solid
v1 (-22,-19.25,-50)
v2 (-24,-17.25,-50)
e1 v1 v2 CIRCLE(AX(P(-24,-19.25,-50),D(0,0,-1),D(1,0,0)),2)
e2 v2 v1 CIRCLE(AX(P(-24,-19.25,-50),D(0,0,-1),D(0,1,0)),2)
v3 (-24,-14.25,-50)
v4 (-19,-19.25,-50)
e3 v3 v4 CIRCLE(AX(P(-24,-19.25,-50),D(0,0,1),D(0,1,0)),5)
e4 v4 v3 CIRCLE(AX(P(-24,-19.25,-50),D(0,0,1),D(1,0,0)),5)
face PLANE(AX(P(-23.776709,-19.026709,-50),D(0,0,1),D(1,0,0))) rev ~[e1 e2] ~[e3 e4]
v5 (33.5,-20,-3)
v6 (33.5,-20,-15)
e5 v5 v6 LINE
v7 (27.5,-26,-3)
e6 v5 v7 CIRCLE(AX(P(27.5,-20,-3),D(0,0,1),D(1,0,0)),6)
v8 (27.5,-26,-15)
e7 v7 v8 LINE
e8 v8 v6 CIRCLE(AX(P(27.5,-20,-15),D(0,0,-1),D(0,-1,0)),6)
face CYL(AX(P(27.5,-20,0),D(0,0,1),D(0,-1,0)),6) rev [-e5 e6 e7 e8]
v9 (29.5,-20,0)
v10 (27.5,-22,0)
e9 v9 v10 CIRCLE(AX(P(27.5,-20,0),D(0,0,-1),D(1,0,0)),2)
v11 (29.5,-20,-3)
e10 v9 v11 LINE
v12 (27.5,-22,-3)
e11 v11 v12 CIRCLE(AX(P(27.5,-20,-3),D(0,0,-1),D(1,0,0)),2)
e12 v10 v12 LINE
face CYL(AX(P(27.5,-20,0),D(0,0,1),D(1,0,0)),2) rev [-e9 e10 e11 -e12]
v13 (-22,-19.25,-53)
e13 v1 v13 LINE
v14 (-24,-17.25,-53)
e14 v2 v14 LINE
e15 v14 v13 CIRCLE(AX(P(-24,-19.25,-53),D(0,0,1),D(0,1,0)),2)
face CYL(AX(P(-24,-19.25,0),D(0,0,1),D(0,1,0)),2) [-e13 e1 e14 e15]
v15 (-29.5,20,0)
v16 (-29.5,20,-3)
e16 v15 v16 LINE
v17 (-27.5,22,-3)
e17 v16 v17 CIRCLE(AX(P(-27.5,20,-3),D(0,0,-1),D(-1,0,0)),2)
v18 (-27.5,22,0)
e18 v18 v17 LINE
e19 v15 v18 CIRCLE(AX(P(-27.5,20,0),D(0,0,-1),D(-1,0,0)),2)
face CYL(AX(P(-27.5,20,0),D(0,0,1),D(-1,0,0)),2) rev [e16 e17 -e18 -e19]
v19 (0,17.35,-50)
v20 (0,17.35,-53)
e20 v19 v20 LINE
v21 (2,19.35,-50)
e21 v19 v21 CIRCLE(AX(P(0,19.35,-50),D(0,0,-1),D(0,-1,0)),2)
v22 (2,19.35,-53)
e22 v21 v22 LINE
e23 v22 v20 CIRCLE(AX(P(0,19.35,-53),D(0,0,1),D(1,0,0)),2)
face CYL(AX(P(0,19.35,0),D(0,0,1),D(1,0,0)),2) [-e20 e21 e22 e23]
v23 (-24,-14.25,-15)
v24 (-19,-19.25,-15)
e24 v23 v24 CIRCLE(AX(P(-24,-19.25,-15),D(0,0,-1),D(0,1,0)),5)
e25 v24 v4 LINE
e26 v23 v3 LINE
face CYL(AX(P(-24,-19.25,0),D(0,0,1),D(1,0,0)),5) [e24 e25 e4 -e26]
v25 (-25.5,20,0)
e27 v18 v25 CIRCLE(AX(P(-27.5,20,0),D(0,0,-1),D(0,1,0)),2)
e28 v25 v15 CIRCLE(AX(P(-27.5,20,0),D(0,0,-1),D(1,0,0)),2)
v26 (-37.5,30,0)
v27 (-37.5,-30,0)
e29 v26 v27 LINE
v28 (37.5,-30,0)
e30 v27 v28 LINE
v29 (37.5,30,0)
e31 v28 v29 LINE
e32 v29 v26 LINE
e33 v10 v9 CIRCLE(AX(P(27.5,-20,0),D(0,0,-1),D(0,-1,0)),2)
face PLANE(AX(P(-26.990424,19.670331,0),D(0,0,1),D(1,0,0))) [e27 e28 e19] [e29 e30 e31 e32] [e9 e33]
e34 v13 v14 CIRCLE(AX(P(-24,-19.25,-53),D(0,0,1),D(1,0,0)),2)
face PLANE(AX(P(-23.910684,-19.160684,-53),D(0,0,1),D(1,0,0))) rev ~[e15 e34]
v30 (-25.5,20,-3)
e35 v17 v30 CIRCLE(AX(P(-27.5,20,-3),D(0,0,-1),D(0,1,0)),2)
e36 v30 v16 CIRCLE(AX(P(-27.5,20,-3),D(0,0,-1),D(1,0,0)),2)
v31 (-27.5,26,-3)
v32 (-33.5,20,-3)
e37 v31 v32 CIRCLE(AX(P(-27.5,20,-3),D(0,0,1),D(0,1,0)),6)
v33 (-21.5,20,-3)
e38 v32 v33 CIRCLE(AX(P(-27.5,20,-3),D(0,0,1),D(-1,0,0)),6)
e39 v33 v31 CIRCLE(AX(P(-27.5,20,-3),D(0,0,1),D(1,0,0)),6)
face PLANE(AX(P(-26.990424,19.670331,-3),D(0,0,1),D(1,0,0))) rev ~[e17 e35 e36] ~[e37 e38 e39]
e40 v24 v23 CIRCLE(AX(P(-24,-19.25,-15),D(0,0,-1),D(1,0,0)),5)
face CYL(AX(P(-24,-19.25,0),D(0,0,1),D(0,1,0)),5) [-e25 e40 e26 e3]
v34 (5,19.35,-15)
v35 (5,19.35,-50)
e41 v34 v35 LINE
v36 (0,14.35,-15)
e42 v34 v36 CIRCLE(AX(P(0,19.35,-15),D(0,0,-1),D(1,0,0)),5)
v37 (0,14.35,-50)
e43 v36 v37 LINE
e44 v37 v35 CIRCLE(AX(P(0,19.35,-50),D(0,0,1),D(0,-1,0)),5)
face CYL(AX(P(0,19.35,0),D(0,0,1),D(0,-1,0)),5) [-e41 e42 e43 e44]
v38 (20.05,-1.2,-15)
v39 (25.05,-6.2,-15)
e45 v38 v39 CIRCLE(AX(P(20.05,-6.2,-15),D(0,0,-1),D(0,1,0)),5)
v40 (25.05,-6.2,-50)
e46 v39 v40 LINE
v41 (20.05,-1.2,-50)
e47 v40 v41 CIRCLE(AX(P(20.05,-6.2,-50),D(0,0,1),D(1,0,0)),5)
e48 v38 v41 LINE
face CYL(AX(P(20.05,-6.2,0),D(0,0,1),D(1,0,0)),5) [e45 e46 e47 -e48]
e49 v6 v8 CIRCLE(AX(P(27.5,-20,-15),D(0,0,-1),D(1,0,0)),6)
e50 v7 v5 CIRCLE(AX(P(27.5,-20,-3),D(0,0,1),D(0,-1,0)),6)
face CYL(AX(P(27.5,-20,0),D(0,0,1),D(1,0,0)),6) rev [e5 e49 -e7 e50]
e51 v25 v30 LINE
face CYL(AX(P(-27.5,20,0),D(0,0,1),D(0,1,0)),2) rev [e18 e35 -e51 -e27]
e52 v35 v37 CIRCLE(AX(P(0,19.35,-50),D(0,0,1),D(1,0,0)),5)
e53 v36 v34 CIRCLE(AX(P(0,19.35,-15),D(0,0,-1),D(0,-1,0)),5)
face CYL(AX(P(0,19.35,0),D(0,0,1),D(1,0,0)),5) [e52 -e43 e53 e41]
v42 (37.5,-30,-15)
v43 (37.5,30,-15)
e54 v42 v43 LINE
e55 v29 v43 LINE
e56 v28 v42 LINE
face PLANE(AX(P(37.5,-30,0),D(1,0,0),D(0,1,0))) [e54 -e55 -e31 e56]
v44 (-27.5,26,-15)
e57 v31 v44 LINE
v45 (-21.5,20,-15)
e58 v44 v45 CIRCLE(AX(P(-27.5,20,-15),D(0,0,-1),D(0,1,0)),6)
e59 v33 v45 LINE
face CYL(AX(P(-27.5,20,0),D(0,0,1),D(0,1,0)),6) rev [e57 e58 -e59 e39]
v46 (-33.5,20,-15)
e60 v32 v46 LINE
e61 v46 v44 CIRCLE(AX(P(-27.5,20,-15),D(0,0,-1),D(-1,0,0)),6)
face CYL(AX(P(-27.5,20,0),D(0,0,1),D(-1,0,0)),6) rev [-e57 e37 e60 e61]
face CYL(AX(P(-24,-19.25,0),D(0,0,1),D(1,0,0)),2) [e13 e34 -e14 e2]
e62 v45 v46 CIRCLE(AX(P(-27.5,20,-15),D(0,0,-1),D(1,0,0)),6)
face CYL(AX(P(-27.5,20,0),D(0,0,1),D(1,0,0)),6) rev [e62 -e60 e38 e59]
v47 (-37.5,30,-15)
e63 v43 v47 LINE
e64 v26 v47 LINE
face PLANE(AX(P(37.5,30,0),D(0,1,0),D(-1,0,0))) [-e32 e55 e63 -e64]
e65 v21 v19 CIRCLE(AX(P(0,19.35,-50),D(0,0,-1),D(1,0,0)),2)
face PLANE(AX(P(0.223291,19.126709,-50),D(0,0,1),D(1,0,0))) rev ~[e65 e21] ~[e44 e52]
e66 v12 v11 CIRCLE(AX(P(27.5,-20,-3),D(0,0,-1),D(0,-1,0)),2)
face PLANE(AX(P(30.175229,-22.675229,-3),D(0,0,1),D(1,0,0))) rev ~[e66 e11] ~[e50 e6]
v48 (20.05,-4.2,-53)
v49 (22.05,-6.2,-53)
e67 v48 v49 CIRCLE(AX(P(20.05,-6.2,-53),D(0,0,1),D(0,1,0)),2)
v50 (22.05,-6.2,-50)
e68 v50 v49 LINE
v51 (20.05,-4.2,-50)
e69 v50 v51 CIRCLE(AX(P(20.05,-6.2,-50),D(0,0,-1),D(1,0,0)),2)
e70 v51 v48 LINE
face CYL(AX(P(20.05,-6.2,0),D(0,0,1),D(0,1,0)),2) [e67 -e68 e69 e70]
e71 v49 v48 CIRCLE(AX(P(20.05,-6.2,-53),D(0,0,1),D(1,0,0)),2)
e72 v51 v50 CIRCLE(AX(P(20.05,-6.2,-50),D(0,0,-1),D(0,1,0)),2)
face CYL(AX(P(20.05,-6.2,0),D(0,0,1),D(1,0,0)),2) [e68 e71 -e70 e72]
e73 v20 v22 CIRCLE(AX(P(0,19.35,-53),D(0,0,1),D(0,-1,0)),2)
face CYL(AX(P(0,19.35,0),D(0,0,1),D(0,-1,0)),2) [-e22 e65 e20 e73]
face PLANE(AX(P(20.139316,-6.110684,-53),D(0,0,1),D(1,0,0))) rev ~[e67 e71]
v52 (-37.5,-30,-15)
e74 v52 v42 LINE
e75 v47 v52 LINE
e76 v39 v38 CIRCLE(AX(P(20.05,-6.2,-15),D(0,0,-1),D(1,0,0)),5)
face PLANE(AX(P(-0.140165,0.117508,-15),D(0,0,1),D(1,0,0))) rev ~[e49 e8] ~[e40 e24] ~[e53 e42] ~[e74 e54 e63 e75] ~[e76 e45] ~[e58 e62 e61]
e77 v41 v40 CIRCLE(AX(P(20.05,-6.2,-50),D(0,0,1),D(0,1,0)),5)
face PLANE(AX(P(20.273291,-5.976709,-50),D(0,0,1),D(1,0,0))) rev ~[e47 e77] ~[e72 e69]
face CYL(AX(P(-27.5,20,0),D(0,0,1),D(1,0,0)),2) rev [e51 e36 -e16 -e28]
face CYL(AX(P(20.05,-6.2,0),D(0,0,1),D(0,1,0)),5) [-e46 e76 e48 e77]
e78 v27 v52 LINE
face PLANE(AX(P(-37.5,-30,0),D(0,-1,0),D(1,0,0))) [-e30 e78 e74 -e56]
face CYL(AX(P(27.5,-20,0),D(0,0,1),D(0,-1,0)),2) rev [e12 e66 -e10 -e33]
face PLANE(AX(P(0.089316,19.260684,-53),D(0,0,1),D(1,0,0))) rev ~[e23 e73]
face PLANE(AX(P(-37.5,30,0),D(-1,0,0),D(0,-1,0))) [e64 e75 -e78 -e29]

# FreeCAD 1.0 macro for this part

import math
import FreeCAD as App
import Part
import Sketcher
from FreeCAD import Vector
Q = App.Units.Quantity


def add_polygon(sketch, points):
    """Adds a closed chain of lines whose ends are joined by coincident constraints."""
    first, n = sketch.GeometryCount, len(points)
    for a, b in zip(points, points[1:] + points[:1]):
        sketch.addGeometry(Part.LineSegment(App.Vector(*a, 0), App.Vector(*b, 0)), False)
    for i in range(n):
        sketch.addConstraint(Sketcher.Constraint("Coincident", first + i, 2, first + (i + 1) % n, 1))

doc = App.newDocument("Part")
params = doc.addObject("Spreadsheet::Sheet", "Params")
for row, (alias, value) in enumerate([
    ("sketch1_radius", "6 mm"),
    ("sketch1_radius2", "5 mm"),
    ("sketch1_width", "75 mm"),
    ("sketch1_height", "60 mm"),
    ("pad1_length", "15 mm"),
    ("sketch2_radius", "6 mm"),
    ("sketch2_radius2", "2 mm"),
    ("pad2_length", "3 mm"),
    ("sketch3_radius", "5 mm"),
    ("sketch3_radius2", "2 mm"),
    ("pad3_length", "50 mm"),
    ("sketch4_radius", "2 mm"),
    ("pad4_length", "53 mm"),
], start=1):
    params.set(f"A{row}", alias)
    params.set(f"B{row}", "=" + value)
    params.setAlias(f"B{row}", alias)

body = doc.addObject("PartDesign::Body", "Body")

# Sketch on XY plane
sketch1 = body.newObject("Sketcher::SketchObject", "Sketch")
sketch1.AttachmentSupport = (doc.getObject("XY_Plane"), [""])
sketch1.MapMode = "FlatFace"
add_polygon(sketch1, [(38, 30), (-38, 30), (-38, -30), (38, -30)])  # lines 0-3
sketch1.addGeometry(Part.ArcOfCircle(Part.Circle(Vector(28, -20, 0), Vector(0, 0, 1), 6), math.radians(0), math.radians(270)), False)  # 4
sketch1.addGeometry(Part.ArcOfCircle(Part.Circle(Vector(28, -20, 0), Vector(0, 0, 1), 6), math.radians(-90), math.radians(0)), False)  # 5
sketch1.addGeometry(Part.ArcOfCircle(Part.Circle(Vector(-28, 20, 0), Vector(0, 0, 1), 6), math.radians(0), math.radians(90)), False)  # 6
sketch1.addGeometry(Part.ArcOfCircle(Part.Circle(Vector(-28, 20, 0), Vector(0, 0, 1), 6), math.radians(180), math.radians(360)), False)  # 7
sketch1.addGeometry(Part.ArcOfCircle(Part.Circle(Vector(-28, 20, 0), Vector(0, 0, 1), 6), math.radians(90), math.radians(180)), False)  # 8
sketch1.addGeometry(Part.ArcOfCircle(Part.Circle(Vector(-24, -19, 0), Vector(0, 0, 1), 5), math.radians(0), math.radians(90)), False)  # 9
sketch1.addGeometry(Part.ArcOfCircle(Part.Circle(Vector(-24, -19, 0), Vector(0, 0, 1), 5), math.radians(90), math.radians(360)), False)  # 10
sketch1.addGeometry(Part.ArcOfCircle(Part.Circle(Vector(20, -6, 0), Vector(0, 0, 1), 5), math.radians(0), math.radians(90)), False)  # 11
sketch1.addGeometry(Part.ArcOfCircle(Part.Circle(Vector(20, -6, 0), Vector(0, 0, 1), 5), math.radians(90), math.radians(360)), False)  # 12
sketch1.addGeometry(Part.ArcOfCircle(Part.Circle(Vector(0, 19, 0), Vector(0, 0, 1), 5), math.radians(0), math.radians(270)), False)  # 13
sketch1.addGeometry(Part.ArcOfCircle(Part.Circle(Vector(0, 19, 0), Vector(0, 0, 1), 5), math.radians(-90), math.radians(0)), False)  # 14
sketch1.addConstraint([
    Sketcher.Constraint("Tangent", 4, 1, 5, 2),
    Sketcher.Constraint("Coincident", 5, 1, 4, 2),
    Sketcher.Constraint("Tangent", 6, 1, 7, 2),
    Sketcher.Constraint("Tangent", 7, 1, 8, 2),
    Sketcher.Constraint("Tangent", 8, 1, 6, 2),
    Sketcher.Constraint("Tangent", 9, 1, 10, 2),
    Sketcher.Constraint("Coincident", 10, 1, 9, 2),
    Sketcher.Constraint("Tangent", 11, 1, 12, 2),
    Sketcher.Constraint("Coincident", 12, 1, 11, 2),
    Sketcher.Constraint("Tangent", 13, 1, 14, 2),
    Sketcher.Constraint("Coincident", 14, 1, 13, 2),
    Sketcher.Constraint("Horizontal", 0),
    Sketcher.Constraint("Vertical", 1),
    Sketcher.Constraint("Horizontal", 2),
    Sketcher.Constraint("Vertical", 3),
    Sketcher.Constraint("Equal", 5, 6),
    Sketcher.Constraint("Equal", 10, 11),
    Sketcher.Constraint("Equal", 12, 13),
    Sketcher.Constraint("Symmetric", 4, 3, 6, 3, -1, 1),
    Sketcher.Constraint("Symmetric", 0, 2, 2, 2, -1, 1),
    Sketcher.Constraint("PointOnObject", 13, 3, -2),
    Sketcher.Constraint("PointOnObject", 14, 1, -2),
    Sketcher.Constraint("Horizontal", 5, 3, 4, 1),
    Sketcher.Constraint("Horizontal", 8, 3, 6, 1),
    Sketcher.Constraint("Horizontal", 6, 1, 7, 1),
    Sketcher.Constraint("Horizontal", 10, 3, 9, 1),
    Sketcher.Constraint("Horizontal", 12, 3, 11, 1),
    Sketcher.Constraint("Horizontal", 14, 3, 13, 1),
    Sketcher.Constraint("Vertical", 4, 3, 5, 1),
    Sketcher.Constraint("Vertical", 7, 3, 8, 1),
    Sketcher.Constraint("Vertical", 9, 3, 10, 1),
    Sketcher.Constraint("Vertical", 11, 3, 12, 1),
    Sketcher.Constraint("Radius", 4, Q("6 mm")),
    Sketcher.Constraint("Radius", 9, Q("5 mm")),
    Sketcher.Constraint("DistanceX", 0, 2, 0, 1, Q("75 mm")),
    Sketcher.Constraint("DistanceY", 1, 2, 1, 1, Q("60 mm")),
    Sketcher.Constraint("DistanceY", 4, 3, -1, 1, Q("20 mm")),
    Sketcher.Constraint("DistanceX", 9, 3, -1, 1, Q("24 mm")),
    Sketcher.Constraint("DistanceX", 6, 3, 4, 3, Q("55 mm")),
    Sketcher.Constraint("DistanceY", 11, 3, -1, 1, Q("6.2 mm")),
    Sketcher.Constraint("DistanceY", 9, 3, -1, 1, Q("19.25 mm")),
    Sketcher.Constraint("DistanceX", -1, 1, 11, 3, Q("20.05 mm")),
    Sketcher.Constraint("DistanceY", -1, 1, 13, 3, Q("19.35 mm")),
])
sketch1.setExpression("Constraints[36]", "Params.sketch1_radius")
sketch1.setExpression("Constraints[37]", "Params.sketch1_radius2")
sketch1.setExpression("Constraints[38]", "Params.sketch1_width")
sketch1.setExpression("Constraints[39]", "Params.sketch1_height")
pad1 = body.newObject("PartDesign::Pad", "Pad")
pad1.Profile = sketch1
pad1.setExpression("Length", "Params.pad1_length")
pad1.Reversed = True

# Sketch on XY plane
sketch2 = body.newObject("Sketcher::SketchObject", "Sketch001")
sketch2.AttachmentSupport = (doc.getObject("XY_Plane"), [""])
sketch2.MapMode = "FlatFace"
sketch2.addGeometry([
    Part.ArcOfCircle(Part.Circle(Vector(-27.5, 20, 0), Vector(0, 0, 1), 6), math.radians(0), math.radians(90)),  # 0
    Part.ArcOfCircle(Part.Circle(Vector(-27.5, 20, 0), Vector(0, 0, 1), 6), math.radians(90), math.radians(180)),  # 1
    Part.ArcOfCircle(Part.Circle(Vector(-27.5, 20, 0), Vector(0, 0, 1), 6), math.radians(180), math.radians(360)),  # 2
    Part.ArcOfCircle(Part.Circle(Vector(-27.5, 20, 0), Vector(0, 0, 1), 2), math.radians(0), math.radians(90)),  # 3
    Part.ArcOfCircle(Part.Circle(Vector(-27.5, 20, 0), Vector(0, 0, 1), 2), math.radians(180), math.radians(360)),  # 4
    Part.ArcOfCircle(Part.Circle(Vector(-27.5, 20, 0), Vector(0, 0, 1), 2), math.radians(90), math.radians(180)),  # 5
    Part.ArcOfCircle(Part.Circle(Vector(27.5, -20, 0), Vector(0, 0, 1), 6), math.radians(-90), math.radians(0)),  # 6
    Part.ArcOfCircle(Part.Circle(Vector(27.5, -20, 0), Vector(0, 0, 1), 6), math.radians(0), math.radians(270)),  # 7
    Part.ArcOfCircle(Part.Circle(Vector(27.5, -20, 0), Vector(0, 0, 1), 2), math.radians(-90), math.radians(0)),  # 8
    Part.ArcOfCircle(Part.Circle(Vector(27.5, -20, 0), Vector(0, 0, 1), 2), math.radians(0), math.radians(270)),  # 9
], False)
sketch2.addConstraint([
    Sketcher.Constraint("Tangent", 0, 2, 1, 1),
    Sketcher.Constraint("Tangent", 1, 2, 2, 1),
    Sketcher.Constraint("Tangent", 2, 2, 0, 1),
    Sketcher.Constraint("Tangent", 3, 1, 4, 2),
    Sketcher.Constraint("Tangent", 4, 1, 5, 2),
    Sketcher.Constraint("Tangent", 5, 1, 3, 2),
    Sketcher.Constraint("Tangent", 6, 1, 7, 2),
    Sketcher.Constraint("Coincident", 7, 1, 6, 2),
    Sketcher.Constraint("Tangent", 8, 1, 9, 2),
    Sketcher.Constraint("Coincident", 9, 1, 8, 2),
    Sketcher.Constraint("Coincident", 3, 3, 0, 3),
    Sketcher.Constraint("Coincident", 8, 3, 6, 3),
    Sketcher.Constraint("Equal", 2, 6),
    Sketcher.Constraint("Equal", 5, 8),
    Sketcher.Constraint("Symmetric", 0, 3, 6, 3, -1, 1),
    Sketcher.Constraint("Horizontal", 5, 3, 1, 2),
    Sketcher.Constraint("Horizontal", 1, 2, 2, 2),
    Sketcher.Constraint("Horizontal", 2, 2, 3, 1),
    Sketcher.Constraint("Horizontal", 3, 1, 4, 1),
    Sketcher.Constraint("Horizontal", 9, 3, 7, 1),
    Sketcher.Constraint("Horizontal", 7, 1, 9, 1),
    Sketcher.Constraint("Vertical", 5, 3, 0, 2),
    Sketcher.Constraint("Vertical", 0, 2, 5, 1),
    Sketcher.Constraint("Vertical", 9, 3, 6, 1),
    Sketcher.Constraint("Vertical", 6, 1, 8, 1),
    Sketcher.Constraint("Radius", 0, Q("6 mm")),
    Sketcher.Constraint("Radius", 3, Q("2 mm")),
    Sketcher.Constraint("DistanceY", -1, 1, 0, 3, Q("20 mm")),
    Sketcher.Constraint("DistanceX", 0, 3, 6, 3, Q("55 mm")),
])
sketch2.setExpression("Constraints[25]", "Params.sketch2_radius")
sketch2.setExpression("Constraints[26]", "Params.sketch2_radius2")
pad2 = body.newObject("PartDesign::Pad", "Pad001")
pad2.Profile = sketch2
pad2.setExpression("Length", "Params.pad2_length")
pad2.Reversed = True

# Sketch on XY plane
sketch3 = body.newObject("Sketcher::SketchObject", "Sketch002")
sketch3.AttachmentSupport = (doc.getObject("XY_Plane"), [""])
sketch3.MapMode = "FlatFace"
sketch3.addGeometry([
    Part.ArcOfCircle(Part.Circle(Vector(0, 19.4, 0), Vector(0, 0, 1), 5), math.radians(0), math.radians(270)),  # 0
    Part.ArcOfCircle(Part.Circle(Vector(0, 19.4, 0), Vector(0, 0, 1), 5), math.radians(-90), math.radians(0)),  # 1
    Part.ArcOfCircle(Part.Circle(Vector(0, 19.4, 0), Vector(0, 0, 1), 2), math.radians(0), math.radians(270)),  # 2
    Part.ArcOfCircle(Part.Circle(Vector(0, 19.4, 0), Vector(0, 0, 1), 2), math.radians(-90), math.radians(0)),  # 3
    Part.ArcOfCircle(Part.Circle(Vector(-24, -19.2, 0), Vector(0, 0, 1), 5), math.radians(0), math.radians(90)),  # 4
    Part.ArcOfCircle(Part.Circle(Vector(-24, -19.2, 0), Vector(0, 0, 1), 5), math.radians(90), math.radians(360)),  # 5
    Part.ArcOfCircle(Part.Circle(Vector(-24, -19.2, 0), Vector(0, 0, 1), 2), math.radians(0), math.radians(90)),  # 6
    Part.ArcOfCircle(Part.Circle(Vector(-24, -19.2, 0), Vector(0, 0, 1), 2), math.radians(90), math.radians(360)),  # 7
    Part.ArcOfCircle(Part.Circle(Vector(20.1, -6.2, 0), Vector(0, 0, 1), 5), math.radians(0), math.radians(90)),  # 8
    Part.ArcOfCircle(Part.Circle(Vector(20.1, -6.2, 0), Vector(0, 0, 1), 5), math.radians(90), math.radians(360)),  # 9
    Part.ArcOfCircle(Part.Circle(Vector(20.1, -6.2, 0), Vector(0, 0, 1), 2), math.radians(0), math.radians(90)),  # 10
    Part.ArcOfCircle(Part.Circle(Vector(20.1, -6.2, 0), Vector(0, 0, 1), 2), math.radians(90), math.radians(360)),  # 11
], False)
sketch3.addConstraint([
    Sketcher.Constraint("Tangent", 0, 1, 1, 2),
    Sketcher.Constraint("Coincident", 1, 1, 0, 2),
    Sketcher.Constraint("Tangent", 2, 1, 3, 2),
    Sketcher.Constraint("Coincident", 3, 1, 2, 2),
    Sketcher.Constraint("Tangent", 4, 1, 5, 2),
    Sketcher.Constraint("Coincident", 5, 1, 4, 2),
    Sketcher.Constraint("Tangent", 6, 1, 7, 2),
    Sketcher.Constraint("Coincident", 7, 1, 6, 2),
    Sketcher.Constraint("Tangent", 8, 1, 9, 2),
    Sketcher.Constraint("Coincident", 9, 1, 8, 2),
    Sketcher.Constraint("Tangent", 10, 1, 11, 2),
    Sketcher.Constraint("Coincident", 11, 1, 10, 2),
    Sketcher.Constraint("Coincident", 2, 3, 0, 3),
    Sketcher.Constraint("Coincident", 6, 3, 4, 3),
    Sketcher.Constraint("Coincident", 10, 3, 8, 3),
    Sketcher.Constraint("Equal", 1, 4),
    Sketcher.Constraint("Equal", 3, 6),
    Sketcher.Constraint("Equal", 5, 8),
    Sketcher.Constraint("Equal", 7, 10),
    Sketcher.Constraint("PointOnObject", 0, 3, -2),
    Sketcher.Constraint("PointOnObject", 1, 1, -2),
    Sketcher.Constraint("PointOnObject", 3, 1, -2),
    Sketcher.Constraint("Horizontal", 3, 3, 0, 1),
    Sketcher.Constraint("Horizontal", 0, 1, 2, 1),
    Sketcher.Constraint("Horizontal", 7, 3, 4, 1),
    Sketcher.Constraint("Horizontal", 4, 1, 6, 1),
    Sketcher.Constraint("Horizontal", 11, 3, 8, 1),
    Sketcher.Constraint("Horizontal", 8, 1, 10, 1),
    Sketcher.Constraint("Vertical", 7, 3, 5, 1),
    Sketcher.Constraint("Vertical", 5, 1, 7, 1),
    Sketcher.Constraint("Vertical", 11, 3, 9, 1),
    Sketcher.Constraint("Vertical", 9, 1, 11, 1),
    Sketcher.Constraint("Radius", 0, Q("5 mm")),
    Sketcher.Constraint("Radius", 2, Q("2 mm")),
    Sketcher.Constraint("DistanceX", 4, 3, -1, 1, Q("24 mm")),
    Sketcher.Constraint("DistanceY", 8, 3, -1, 1, Q("6.2 mm")),
    Sketcher.Constraint("DistanceY", 4, 3, 0, 3, Q("38.6 mm")),
    Sketcher.Constraint("DistanceY", -1, 1, 0, 3, Q("19.35 mm")),
    Sketcher.Constraint("DistanceX", -1, 1, 8, 3, Q("20.05 mm")),
])
sketch3.setExpression("Constraints[32]", "Params.sketch3_radius")
sketch3.setExpression("Constraints[33]", "Params.sketch3_radius2")
pad3 = body.newObject("PartDesign::Pad", "Pad002")
pad3.Profile = sketch3
pad3.setExpression("Length", "Params.pad3_length")
pad3.Reversed = True

# Sketch on XY plane
sketch4 = body.newObject("Sketcher::SketchObject", "Sketch003")
sketch4.AttachmentSupport = (doc.getObject("XY_Plane"), [""])
sketch4.MapMode = "FlatFace"
sketch4.addGeometry([
    Part.ArcOfCircle(Part.Circle(Vector(0, 19.4, 0), Vector(0, 0, 1), 2), math.radians(0), math.radians(270)),  # 0
    Part.ArcOfCircle(Part.Circle(Vector(0, 19.4, 0), Vector(0, 0, 1), 2), math.radians(-90), math.radians(0)),  # 1
    Part.ArcOfCircle(Part.Circle(Vector(-24, -19.2, 0), Vector(0, 0, 1), 2), math.radians(0), math.radians(90)),  # 2
    Part.ArcOfCircle(Part.Circle(Vector(-24, -19.2, 0), Vector(0, 0, 1), 2), math.radians(90), math.radians(360)),  # 3
    Part.ArcOfCircle(Part.Circle(Vector(20.1, -6.2, 0), Vector(0, 0, 1), 2), math.radians(0), math.radians(90)),  # 4
    Part.ArcOfCircle(Part.Circle(Vector(20.1, -6.2, 0), Vector(0, 0, 1), 2), math.radians(90), math.radians(360)),  # 5
], False)
sketch4.addConstraint([
    Sketcher.Constraint("Tangent", 0, 1, 1, 2),
    Sketcher.Constraint("Coincident", 1, 1, 0, 2),
    Sketcher.Constraint("Tangent", 2, 1, 3, 2),
    Sketcher.Constraint("Coincident", 3, 1, 2, 2),
    Sketcher.Constraint("Tangent", 4, 1, 5, 2),
    Sketcher.Constraint("Coincident", 5, 1, 4, 2),
    Sketcher.Constraint("Equal", 1, 2),
    Sketcher.Constraint("Equal", 3, 4),
    Sketcher.Constraint("PointOnObject", 0, 3, -2),
    Sketcher.Constraint("PointOnObject", 1, 1, -2),
    Sketcher.Constraint("Horizontal", 1, 3, 0, 1),
    Sketcher.Constraint("Horizontal", 3, 3, 2, 1),
    Sketcher.Constraint("Horizontal", 5, 3, 4, 1),
    Sketcher.Constraint("Vertical", 2, 3, 3, 1),
    Sketcher.Constraint("Vertical", 4, 3, 5, 1),
    Sketcher.Constraint("Radius", 0, Q("2 mm")),
    Sketcher.Constraint("DistanceX", 2, 3, -1, 1, Q("24 mm")),
    Sketcher.Constraint("DistanceY", 4, 3, -1, 1, Q("6.2 mm")),
    Sketcher.Constraint("DistanceY", 2, 3, 0, 3, Q("38.6 mm")),
    Sketcher.Constraint("DistanceY", -1, 1, 0, 3, Q("19.35 mm")),
    Sketcher.Constraint("DistanceX", -1, 1, 4, 3, Q("20.05 mm")),
])
sketch4.setExpression("Constraints[15]", "Params.sketch4_radius")
pad4 = body.newObject("PartDesign::Pad", "Pad003")
pad4.Profile = sketch4
pad4.setExpression("Length", "Params.pad4_length")
pad4.Reversed = True

doc.recompute()
